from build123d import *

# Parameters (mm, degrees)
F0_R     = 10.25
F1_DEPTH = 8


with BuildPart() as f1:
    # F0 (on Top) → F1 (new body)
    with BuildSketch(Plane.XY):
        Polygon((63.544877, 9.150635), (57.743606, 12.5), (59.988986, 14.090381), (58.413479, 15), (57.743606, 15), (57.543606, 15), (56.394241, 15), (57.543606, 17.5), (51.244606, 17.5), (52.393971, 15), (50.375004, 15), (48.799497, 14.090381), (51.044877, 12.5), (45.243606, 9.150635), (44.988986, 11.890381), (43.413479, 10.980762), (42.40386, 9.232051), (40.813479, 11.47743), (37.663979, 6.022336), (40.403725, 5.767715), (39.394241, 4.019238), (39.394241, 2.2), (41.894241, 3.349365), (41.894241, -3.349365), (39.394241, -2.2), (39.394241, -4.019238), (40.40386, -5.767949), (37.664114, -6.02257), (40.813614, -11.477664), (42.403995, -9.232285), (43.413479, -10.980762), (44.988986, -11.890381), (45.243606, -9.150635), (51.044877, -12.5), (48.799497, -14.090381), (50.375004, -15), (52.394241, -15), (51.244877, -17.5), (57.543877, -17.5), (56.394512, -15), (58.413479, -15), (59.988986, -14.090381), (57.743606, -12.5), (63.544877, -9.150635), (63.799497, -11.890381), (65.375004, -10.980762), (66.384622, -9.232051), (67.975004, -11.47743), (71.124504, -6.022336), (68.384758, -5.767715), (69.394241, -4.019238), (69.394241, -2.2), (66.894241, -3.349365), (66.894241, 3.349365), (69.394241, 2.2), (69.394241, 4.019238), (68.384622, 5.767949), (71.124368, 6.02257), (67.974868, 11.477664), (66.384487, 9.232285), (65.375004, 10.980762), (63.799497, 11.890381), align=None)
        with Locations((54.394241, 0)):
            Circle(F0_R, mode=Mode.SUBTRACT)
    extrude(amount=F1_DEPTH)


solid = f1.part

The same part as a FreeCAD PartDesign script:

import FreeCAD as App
import Part
import Sketcher

V = App.Vector
Q = App.Units.Quantity

doc = App.newDocument("Part")
body = doc.addObject("PartDesign::Body", "Body")

# Sketch on XY plane
sketch1 = body.newObject("Sketcher::SketchObject", "Sketch")
sketch1.AttachmentSupport = (doc.getObject("XY_Plane"), [""])
sketch1.MapMode = "FlatFace"
sketch1.addGeometry([
    Part.LineSegment(V(63.544877, 9.150635, 0), V(57.743606, 12.5, 0)),  # 0
    Part.LineSegment(V(57.743606, 12.5, 0), V(59.988986, 14.090381, 0)),  # 1
    Part.LineSegment(V(59.988986, 14.090381, 0), V(58.413479, 15, 0)),  # 2
    Part.LineSegment(V(58.413479, 15, 0), V(56.394241, 15, 0)),  # 3
    Part.LineSegment(V(56.394241, 15, 0), V(57.543606, 17.5, 0)),  # 4
    Part.LineSegment(V(57.543606, 17.5, 0), V(51.244606, 17.5, 0)),  # 5
    Part.LineSegment(V(51.244606, 17.5, 0), V(52.393971, 15, 0)),  # 6
    Part.LineSegment(V(52.393971, 15, 0), V(50.375004, 15, 0)),  # 7
    Part.LineSegment(V(50.375004, 15, 0), V(48.799497, 14.090381, 0)),  # 8
    Part.LineSegment(V(48.799497, 14.090381, 0), V(51.044877, 12.5, 0)),  # 9
    Part.LineSegment(V(51.044877, 12.5, 0), V(45.243606, 9.150635, 0)),  # 10
    Part.LineSegment(V(45.243606, 9.150635, 0), V(44.988986, 11.890381, 0)),  # 11
    Part.LineSegment(V(44.988986, 11.890381, 0), V(43.413479, 10.980762, 0)),  # 12
    Part.LineSegment(V(43.413479, 10.980762, 0), V(42.40386, 9.232051, 0)),  # 13
    Part.LineSegment(V(42.40386, 9.232051, 0), V(40.813479, 11.47743, 0)),  # 14
    Part.LineSegment(V(40.813479, 11.47743, 0), V(37.663979, 6.022336, 0)),  # 15
    Part.LineSegment(V(37.663979, 6.022336, 0), V(40.403725, 5.767715, 0)),  # 16
    Part.LineSegment(V(40.403725, 5.767715, 0), V(39.394241, 4.019238, 0)),  # 17
    Part.LineSegment(V(39.394241, 4.019238, 0), V(39.394241, 2.2, 0)),  # 18
    Part.LineSegment(V(39.394241, 2.2, 0), V(41.894241, 3.349365, 0)),  # 19
    Part.LineSegment(V(41.894241, 3.349365, 0), V(41.894241, -3.349365, 0)),  # 20
    Part.LineSegment(V(41.894241, -3.349365, 0), V(39.394241, -2.2, 0)),  # 21
    Part.LineSegment(V(39.394241, -2.2, 0), V(39.394241, -4.019238, 0)),  # 22
    Part.LineSegment(V(39.394241, -4.019238, 0), V(40.40386, -5.767949, 0)),  # 23
    Part.LineSegment(V(40.40386, -5.767949, 0), V(37.664114, -6.02257, 0)),  # 24
    Part.LineSegment(V(37.664114, -6.02257, 0), V(40.813614, -11.477664, 0)),  # 25
    Part.LineSegment(V(40.813614, -11.477664, 0), V(42.403995, -9.232285, 0)),  # 26
    Part.LineSegment(V(42.403995, -9.232285, 0), V(43.413479, -10.980762, 0)),  # 27
    Part.LineSegment(V(43.413479, -10.980762, 0), V(44.988986, -11.890381, 0)),  # 28
    Part.LineSegment(V(44.988986, -11.890381, 0), V(45.243606, -9.150635, 0)),  # 29
    Part.LineSegment(V(45.243606, -9.150635, 0), V(51.044877, -12.5, 0)),  # 30
    Part.LineSegment(V(51.044877, -12.5, 0), V(48.799497, -14.090381, 0)),  # 31
    Part.LineSegment(V(48.799497, -14.090381, 0), V(50.375004, -15, 0)),  # 32
    Part.LineSegment(V(50.375004, -15, 0), V(52.394241, -15, 0)),  # 33
    Part.LineSegment(V(52.394241, -15, 0), V(51.244877, -17.5, 0)),  # 34
    Part.LineSegment(V(51.244877, -17.5, 0), V(57.543877, -17.5, 0)),  # 35
    Part.LineSegment(V(57.543877, -17.5, 0), V(56.394512, -15, 0)),  # 36
    Part.LineSegment(V(56.394512, -15, 0), V(58.413479, -15, 0)),  # 37
    Part.LineSegment(V(58.413479, -15, 0), V(59.988986, -14.090381, 0)),  # 38
    Part.LineSegment(V(59.988986, -14.090381, 0), V(57.743606, -12.5, 0)),  # 39
    Part.LineSegment(V(57.743606, -12.5, 0), V(63.544877, -9.150635, 0)),  # 40
    Part.LineSegment(V(63.544877, -9.150635, 0), V(63.799497, -11.890381, 0)),  # 41
    Part.LineSegment(V(63.799497, -11.890381, 0), V(65.375004, -10.980762, 0)),  # 42
    Part.LineSegment(V(65.375004, -10.980762, 0), V(66.384622, -9.232051, 0)),  # 43
    Part.LineSegment(V(66.384622, -9.232051, 0), V(67.975004, -11.47743, 0)),  # 44
    Part.LineSegment(V(67.975004, -11.47743, 0), V(71.124504, -6.022336, 0)),  # 45
    Part.LineSegment(V(71.124504, -6.022336, 0), V(68.384758, -5.767715, 0)),  # 46
    Part.LineSegment(V(68.384758, -5.767715, 0), V(69.394241, -4.019238, 0)),  # 47
    Part.LineSegment(V(69.394241, -4.019238, 0), V(69.394241, -2.2, 0)),  # 48
    Part.LineSegment(V(69.394241, -2.2, 0), V(66.894241, -3.349365, 0)),  # 49
    Part.LineSegment(V(66.894241, -3.349365, 0), V(66.894241, 3.349365, 0)),  # 50
    Part.LineSegment(V(66.894241, 3.349365, 0), V(69.394241, 2.2, 0)),  # 51
    Part.LineSegment(V(69.394241, 2.2, 0), V(69.394241, 4.019238, 0)),  # 52
    Part.LineSegment(V(69.394241, 4.019238, 0), V(68.384622, 5.767949, 0)),  # 53
    Part.LineSegment(V(68.384622, 5.767949, 0), V(71.124368, 6.02257, 0)),  # 54
    Part.LineSegment(V(71.124368, 6.02257, 0), V(67.974868, 11.477664, 0)),  # 55
    Part.LineSegment(V(67.974868, 11.477664, 0), V(66.384487, 9.232285, 0)),  # 56
    Part.LineSegment(V(66.384487, 9.232285, 0), V(65.375004, 10.980762, 0)),  # 57
    Part.LineSegment(V(65.375004, 10.980762, 0), V(63.799497, 11.890381, 0)),  # 58
    Part.LineSegment(V(63.799497, 11.890381, 0), V(63.544877, 9.150635, 0)),  # 59
    Part.Circle(V(54.394241, 0, 0), V(0, 0, 1), 10.25),  # 60
], False)
sketch1.addConstraint([
    Sketcher.Constraint("Coincident", 0, 2, 1, 1),
    Sketcher.Constraint("Coincident", 1, 2, 2, 1),
    Sketcher.Constraint("Coincident", 2, 2, 3, 1),
    Sketcher.Constraint("Coincident", 3, 2, 4, 1),
    Sketcher.Constraint("Coincident", 4, 2, 5, 1),
    Sketcher.Constraint("Coincident", 5, 2, 6, 1),
    Sketcher.Constraint("Coincident", 6, 2, 7, 1),
    Sketcher.Constraint("Coincident", 7, 2, 8, 1),
    Sketcher.Constraint("Coincident", 8, 2, 9, 1),
    Sketcher.Constraint("Coincident", 9, 2, 10, 1),
    Sketcher.Constraint("Coincident", 10, 2, 11, 1),
    Sketcher.Constraint("Coincident", 11, 2, 12, 1),
    Sketcher.Constraint("Coincident", 12, 2, 13, 1),
    Sketcher.Constraint("Coincident", 13, 2, 14, 1),
    Sketcher.Constraint("Coincident", 14, 2, 15, 1),
    Sketcher.Constraint("Coincident", 15, 2, 16, 1),
    Sketcher.Constraint("Coincident", 16, 2, 17, 1),
    Sketcher.Constraint("Coincident", 17, 2, 18, 1),
    Sketcher.Constraint("Coincident", 18, 2, 19, 1),
    Sketcher.Constraint("Coincident", 19, 2, 20, 1),
    Sketcher.Constraint("Coincident", 20, 2, 21, 1),
    Sketcher.Constraint("Coincident", 21, 2, 22, 1),
    Sketcher.Constraint("Coincident", 22, 2, 23, 1),
    Sketcher.Constraint("Coincident", 23, 2, 24, 1),
    Sketcher.Constraint("Coincident", 24, 2, 25, 1),
    Sketcher.Constraint("Coincident", 25, 2, 26, 1),
    Sketcher.Constraint("Coincident", 26, 2, 27, 1),
    Sketcher.Constraint("Coincident", 27, 2, 28, 1),
    Sketcher.Constraint("Coincident", 28, 2, 29, 1),
    Sketcher.Constraint("Coincident", 29, 2, 30, 1),
    Sketcher.Constraint("Coincident", 30, 2, 31, 1),
    Sketcher.Constraint("Coincident", 31, 2, 32, 1),
    Sketcher.Constraint("Coincident", 32, 2, 33, 1),
    Sketcher.Constraint("Coincident", 33, 2, 34, 1),
    Sketcher.Constraint("Coincident", 34, 2, 35, 1),
    Sketcher.Constraint("Coincident", 35, 2, 36, 1),
    Sketcher.Constraint("Coincident", 36, 2, 37, 1),
    Sketcher.Constraint("Coincident", 37, 2, 38, 1),
    Sketcher.Constraint("Coincident", 38, 2, 39, 1),
    Sketcher.Constraint("Coincident", 39, 2, 40, 1),
    Sketcher.Constraint("Coincident", 40, 2, 41, 1),
    Sketcher.Constraint("Coincident", 41, 2, 42, 1),
    Sketcher.Constraint("Coincident", 42, 2, 43, 1),
    Sketcher.Constraint("Coincident", 43, 2, 44, 1),
    Sketcher.Constraint("Coincident", 44, 2, 45, 1),
    Sketcher.Constraint("Coincident", 45, 2, 46, 1),
    Sketcher.Constraint("Coincident", 46, 2, 47, 1),
    Sketcher.Constraint("Coincident", 47, 2, 48, 1),
    Sketcher.Constraint("Coincident", 48, 2, 49, 1),
    Sketcher.Constraint("Coincident", 49, 2, 50, 1),
    Sketcher.Constraint("Coincident", 50, 2, 51, 1),
    Sketcher.Constraint("Coincident", 51, 2, 52, 1),
    Sketcher.Constraint("Coincident", 52, 2, 53, 1),
    Sketcher.Constraint("Coincident", 53, 2, 54, 1),
    Sketcher.Constraint("Coincident", 54, 2, 55, 1),
    Sketcher.Constraint("Coincident", 55, 2, 56, 1),
    Sketcher.Constraint("Coincident", 56, 2, 57, 1),
    Sketcher.Constraint("Coincident", 57, 2, 58, 1),
    Sketcher.Constraint("Coincident", 58, 2, 59, 1),
    Sketcher.Constraint("Coincident", 59, 2, 0, 1),
    Sketcher.Constraint("Horizontal", 3),
    Sketcher.Constraint("Horizontal", 5),
    Sketcher.Constraint("Horizontal", 7),
    Sketcher.Constraint("Vertical", 18),
    Sketcher.Constraint("Vertical", 20),
    Sketcher.Constraint("Vertical", 22),
    Sketcher.Constraint("Horizontal", 33),
    Sketcher.Constraint("Horizontal", 35),
    Sketcher.Constraint("Horizontal", 37),
    Sketcher.Constraint("Vertical", 48),
    Sketcher.Constraint("Vertical", 50),
    Sketcher.Constraint("Vertical", 52),
    Sketcher.Constraint("Symmetric", 18, 2, 21, 2, -1),
    Sketcher.Constraint("Symmetric", 12, 2, 27, 2, -1),
    Sketcher.Constraint("Symmetric", 11, 2, 28, 2, -1),
    Sketcher.Constraint("Symmetric", 10, 2, 29, 2, -1),
    Sketcher.Constraint("Symmetric", 9, 2, 30, 2, -1),
    Sketcher.Constraint("Symmetric", 8, 2, 31, 2, -1),
    Sketcher.Constraint("Symmetric", 7, 2, 32, 2, -1),
    Sketcher.Constraint("Symmetric", 2, 2, 37, 2, -1),
    Sketcher.Constraint("Symmetric", 1, 2, 38, 2, -1),
    Sketcher.Constraint("Symmetric", 0, 2, 39, 2, -1),
    Sketcher.Constraint("Symmetric", 48, 2, 51, 2, -1),
    Sketcher.Constraint("Symmetric", 42, 2, 57, 2, -1),
    Sketcher.Constraint("Symmetric", 41, 2, 58, 2, -1),
    Sketcher.Constraint("Symmetric", 40, 2, 59, 2, -1),
    Sketcher.Constraint("PointOnObject", 60, 3, -1),
    Sketcher.Constraint("Parallel", 0, 2),
    Sketcher.Constraint("Parallel", 8, 10),
    Sketcher.Constraint("Parallel", 10, 12),
    Sketcher.Constraint("Perpendicular", 2, 13),
    Sketcher.Constraint("Perpendicular", 1, 14),
    Sketcher.Constraint("Parallel", 13, 15),
    Sketcher.Constraint("Parallel", 15, 17),
    Sketcher.Constraint("Perpendicular", 6, 19),
    Sketcher.Constraint("Perpendicular", 4, 21),
    Sketcher.Constraint("Perpendicular", 12, 23),
    Sketcher.Constraint("Perpendicular", 11, 24),
    Sketcher.Constraint("Parallel", 23, 25),
    Sketcher.Constraint("Perpendicular", 9, 26),
    Sketcher.Constraint("Parallel", 25, 27),
    Sketcher.Constraint("Perpendicular", 17, 28),
    Sketcher.Constraint("Perpendicular", 16, 29),
    Sketcher.Constraint("Perpendicular", 14, 31),
    Sketcher.Constraint("Perpendicular", 21, 34),
    Sketcher.Constraint("Perpendicular", 19, 36),
    Sketcher.Constraint("Perpendicular", 24, 41),
    Sketcher.Constraint("Parallel", 40, 42),
    Sketcher.Constraint("Perpendicular", 32, 43),
    Sketcher.Constraint("Perpendicular", 31, 44),
    Sketcher.Constraint("Parallel", 43, 45),
    Sketcher.Constraint("Perpendicular", 29, 46),
    Sketcher.Constraint("Parallel", 45, 47),
    Sketcher.Constraint("Perpendicular", 36, 49),
    Sketcher.Constraint("Perpendicular", 34, 51),
    Sketcher.Constraint("Perpendicular", 42, 53),
    Sketcher.Constraint("Perpendicular", 41, 54),
    Sketcher.Constraint("Parallel", 53, 55),
    Sketcher.Constraint("Perpendicular", 39, 56),
    Sketcher.Constraint("Parallel", 55, 57),
    Sketcher.Constraint("Horizontal", 3, 2, 6, 2),
    Sketcher.Constraint("Horizontal", 1, 2, 8, 2),
    Sketcher.Constraint("Horizontal", 0, 2, 9, 2),
    Sketcher.Constraint("Horizontal", 29, 2, 40, 2),
    Sketcher.Constraint("Horizontal", 28, 2, 41, 2),
    Sketcher.Constraint("Horizontal", 27, 2, 42, 2),
    Sketcher.Constraint("Horizontal", 22, 2, 47, 2),
    Sketcher.Constraint("Horizontal", 21, 2, 48, 2),
    Sketcher.Constraint("Horizontal", 20, 2, 49, 2),
    Sketcher.Constraint("Horizontal", 19, 2, 50, 2),
    Sketcher.Constraint("Horizontal", 17, 2, 52, 2),
    Sketcher.Constraint("Equal", 3, 33),
    Sketcher.Constraint("Equal", 5, 35),
    Sketcher.Constraint("Equal", 7, 37),
    Sketcher.Constraint("Equal", 18, 22),
    Sketcher.Constraint("Equal", 1, 4),
    Sketcher.Constraint("Equal", 9, 11),
    Sketcher.Constraint("Equal", 8, 12),
    Sketcher.Constraint("Equal", 11, 14),
    Sketcher.Constraint("Equal", 14, 16),
    Sketcher.Constraint("Equal", 16, 19),
    Sketcher.Constraint("Equal", 13, 23),
    Sketcher.Constraint("Equal", 21, 24),
    Sketcher.Constraint("Equal", 15, 25),
    Sketcher.Constraint("Equal", 23, 43),
    Sketcher.Constraint("Equal", 41, 44),
    Sketcher.Constraint("Equal", 25, 45),
    Sketcher.Constraint("Equal", 44, 46),
    Sketcher.Constraint("Equal", 43, 53),
    Sketcher.Constraint("Equal", 51, 54),
    Sketcher.Constraint("Equal", 45, 55),
    Sketcher.Constraint("Diameter", 60, 20.5),
    Sketcher.Constraint("Angle", 0, Q("150.000003 deg")),
    Sketcher.Constraint("DistanceY", -1, 1, 2, 2, 15.0),
    Sketcher.Constraint("DistanceY", -1, 1, 0, 2, 12.5),
    Sketcher.Constraint("DistanceY", -1, 1, 4, 2, 17.5),
    Sketcher.Constraint("DistanceY", -1, 1, 18, 2, 2.2),
    Sketcher.Constraint("DistanceX", 5, 2, 5, 1, 6.299),
    Sketcher.Constraint("Distance", 15, 6.299),
    Sketcher.Constraint("DistanceX", 3, 2, 3, 1, 2.019238),
    Sketcher.Constraint("DistanceY", 20, 2, 20, 1, 6.69873),
    Sketcher.Constraint("Distance", 0, 6.698731),
    Sketcher.Constraint("Distance", 2, 1.819239),
    Sketcher.Constraint("DistanceX", 7, 2, 7, 1, 2.018967),
    Sketcher.Constraint("DistanceY", 18, 2, 18, 1, 1.819238),
    Sketcher.Constraint("DistanceX", -1, 1, 60, 3, 54.394241),
    Sketcher.Constraint("DistanceX", -1, 1, 2, 2, 58.413479),
    Sketcher.Constraint("DistanceY", -1, 1, 11, 2, 11.890381),
    Sketcher.Constraint("DistanceX", -1, 1, 13, 2, 42.40386),
])
pad1 = body.newObject("PartDesign::Pad", "Pad")
pad1.Profile = sketch1
pad1.Length = 8

doc.recompute()
